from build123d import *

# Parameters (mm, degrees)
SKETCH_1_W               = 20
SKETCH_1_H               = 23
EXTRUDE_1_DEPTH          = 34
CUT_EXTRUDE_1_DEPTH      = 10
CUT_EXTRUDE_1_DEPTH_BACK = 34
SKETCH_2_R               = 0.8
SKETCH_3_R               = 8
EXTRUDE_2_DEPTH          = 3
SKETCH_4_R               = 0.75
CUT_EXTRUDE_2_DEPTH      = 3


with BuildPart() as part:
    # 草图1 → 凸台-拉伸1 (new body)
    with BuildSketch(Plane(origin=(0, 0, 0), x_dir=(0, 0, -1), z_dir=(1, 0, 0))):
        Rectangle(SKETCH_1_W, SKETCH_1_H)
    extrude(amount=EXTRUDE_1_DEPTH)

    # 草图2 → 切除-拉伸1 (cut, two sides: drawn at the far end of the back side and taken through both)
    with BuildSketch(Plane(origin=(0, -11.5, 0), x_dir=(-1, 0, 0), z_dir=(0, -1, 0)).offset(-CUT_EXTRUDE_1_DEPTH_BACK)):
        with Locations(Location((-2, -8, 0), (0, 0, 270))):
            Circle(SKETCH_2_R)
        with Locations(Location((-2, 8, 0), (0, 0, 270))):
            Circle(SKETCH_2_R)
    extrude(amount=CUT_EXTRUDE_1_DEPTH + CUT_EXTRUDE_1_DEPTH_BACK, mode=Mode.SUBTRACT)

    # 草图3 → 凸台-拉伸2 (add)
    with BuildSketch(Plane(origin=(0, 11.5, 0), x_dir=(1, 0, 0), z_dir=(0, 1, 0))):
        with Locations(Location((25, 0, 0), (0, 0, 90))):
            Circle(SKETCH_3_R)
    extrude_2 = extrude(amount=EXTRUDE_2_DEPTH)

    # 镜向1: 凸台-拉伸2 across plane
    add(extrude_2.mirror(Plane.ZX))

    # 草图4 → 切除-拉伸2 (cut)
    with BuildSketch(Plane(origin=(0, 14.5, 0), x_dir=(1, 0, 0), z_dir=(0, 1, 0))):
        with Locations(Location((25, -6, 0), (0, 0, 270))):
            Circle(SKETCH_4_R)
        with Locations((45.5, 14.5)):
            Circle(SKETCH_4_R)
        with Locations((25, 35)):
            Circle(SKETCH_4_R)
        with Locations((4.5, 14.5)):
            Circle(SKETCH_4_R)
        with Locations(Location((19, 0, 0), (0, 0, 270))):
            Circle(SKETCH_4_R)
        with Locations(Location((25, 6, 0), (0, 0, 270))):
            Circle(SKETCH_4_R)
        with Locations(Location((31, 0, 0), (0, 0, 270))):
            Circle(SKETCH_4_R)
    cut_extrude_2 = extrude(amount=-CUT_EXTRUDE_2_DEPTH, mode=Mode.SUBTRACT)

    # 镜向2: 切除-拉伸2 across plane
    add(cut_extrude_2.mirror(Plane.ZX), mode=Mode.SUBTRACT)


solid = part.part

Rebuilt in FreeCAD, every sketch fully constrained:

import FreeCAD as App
import Part
import Sketcher

V = App.Vector
Q = App.Units.Quantity

doc = App.newDocument("Part")
params = doc.addObject("Spreadsheet::Sheet", "Params")
for row, (alias, value) in enumerate([
    ("sketch1_width", "23 mm"),
    ("sketch1_height", "20 mm"),
    ("pad1_length", "34 mm"),
    ("sketch2_diameter", "1.6 mm"),
    ("sketch3_diameter", "16 mm"),
    ("pad2_length", "3 mm"),
    ("sketch4_diameter", "1.5 mm"),
    ("pocket2_length", "3 mm"),
], start=1):
    params.set(f"A{row}", alias)
    params.set(f"B{row}", "=" + value)
    params.setAlias(f"B{row}", alias)

body = doc.addObject("PartDesign::Body", "Body")

# Sketch on YZ plane
sketch1 = body.newObject("Sketcher::SketchObject", "Sketch")
sketch1.AttachmentSupport = (doc.getObject("YZ_Plane"), [""])
sketch1.MapMode = "FlatFace"
sketch1.addGeometry(Part.LineSegment(V(12, 10, 0), V(-12, 10, 0)), False)
sketch1.addGeometry(Part.LineSegment(V(-12, 10, 0), V(-12, -10, 0)), False)
sketch1.addGeometry(Part.LineSegment(V(-12, -10, 0), V(12, -10, 0)), False)
sketch1.addGeometry(Part.LineSegment(V(12, -10, 0), V(12, 10, 0)), False)
sketch1.addConstraint(Sketcher.Constraint("Coincident", 0, 2, 1, 1))
sketch1.addConstraint(Sketcher.Constraint("Coincident", 1, 2, 2, 1))
sketch1.addConstraint(Sketcher.Constraint("Coincident", 2, 2, 3, 1))
sketch1.addConstraint(Sketcher.Constraint("Coincident", 3, 2, 0, 1))
sketch1.addConstraint(Sketcher.Constraint("Horizontal", 0))
sketch1.addConstraint(Sketcher.Constraint("Vertical", 1))
sketch1.addConstraint(Sketcher.Constraint("Horizontal", 2))
sketch1.addConstraint(Sketcher.Constraint("Vertical", 3))
sketch1.addConstraint(Sketcher.Constraint("Symmetric", 0, 2, 2, 2, -1, 1))
sketch1.addConstraint(Sketcher.Constraint("DistanceX", 0, 2, 0, 1, Q("23 mm")))
sketch1.addConstraint(Sketcher.Constraint("DistanceY", 1, 2, 1, 1, Q("20 mm")))
sketch1.setExpression("Constraints[9]", "Params.sketch1_width")
sketch1.setExpression("Constraints[10]", "Params.sketch1_height")
pad1 = body.newObject("PartDesign::Pad", "Pad")
pad1.Profile = sketch1
pad1.setExpression("Length", "Params.pad1_length")

# Sketch on XZ plane
sketch2 = body.newObject("Sketcher::SketchObject", "Sketch001")
sketch2.AttachmentSupport = (doc.getObject("XZ_Plane"), [""])
sketch2.MapMode = "FlatFace"
sketch2.AttachmentOffset = App.Placement(V(0, 0, 11.5), App.Rotation())
sketch2.addGeometry(Part.Circle(V(2, 8, 0), V(0, 0, 1), 0.8), False)
sketch2.addGeometry(Part.Circle(V(2, -8, 0), V(0, 0, 1), 0.8), False)
sketch2.addConstraint(Sketcher.Constraint("Equal", 0, 1))
sketch2.addConstraint(Sketcher.Constraint("Symmetric", 0, 3, 1, 3, -1))
sketch2.addConstraint(Sketcher.Constraint("Diameter", 0, Q("1.6 mm")))
sketch2.addConstraint(Sketcher.Constraint("DistanceX", -1, 1, 0, 3, Q("2 mm")))
sketch2.addConstraint(Sketcher.Constraint("DistanceY", -1, 1, 0, 3, Q("8 mm")))
sketch2.setExpression("Constraints[2]", "Params.sketch2_diameter")
pocket1 = body.newObject("PartDesign::Pocket", "Pocket")
pocket1.Profile = sketch2
pocket1.Type = "ThroughAll"
pocket1.Midplane = True

# Sketch on XZ plane
sketch3 = body.newObject("Sketcher::SketchObject", "Sketch002")
sketch3.AttachmentSupport = (doc.getObject("XZ_Plane"), [""])
sketch3.MapMode = "FlatFace"
sketch3.AttachmentOffset = App.Placement(V(0, 0, -11.5), App.Rotation())
sketch3.addGeometry(Part.Circle(V(25, 0, 0), V(0, 0, 1), 8), False)
sketch3.addConstraint(Sketcher.Constraint("PointOnObject", 0, 3, -1))
sketch3.addConstraint(Sketcher.Constraint("Diameter", 0, Q("16 mm")))
sketch3.addConstraint(Sketcher.Constraint("DistanceX", -1, 1, 0, 3, Q("25 mm")))
sketch3.setExpression("Constraints[1]", "Params.sketch3_diameter")
pad2 = body.newObject("PartDesign::Pad", "Pad001")
pad2.Profile = sketch3
pad2.setExpression("Length", "Params.pad2_length")
pad2.Reversed = True
doc.recompute()

mirrored = body.newObject("PartDesign::Mirrored", "Mirrored")
mirrored.Originals = [pad2]
mirrored.MirrorPlane = (doc.getObject("XZ_Plane"), [""])
body.Tip = mirrored

# Sketch on XZ plane
sketch4 = body.newObject("Sketcher::SketchObject", "Sketch003")
sketch4.AttachmentSupport = (doc.getObject("XZ_Plane"), [""])
sketch4.MapMode = "FlatFace"
sketch4.AttachmentOffset = App.Placement(V(0, 0, -14.5), App.Rotation())
sketch4.addGeometry(Part.Circle(V(25, 6, 0), V(0, 0, 1), 0.8), False)
sketch4.addGeometry(Part.Circle(V(45.5, -14.5, 0), V(0, 0, 1), 0.8), False)
sketch4.addGeometry(Part.Circle(V(25, -35, 0), V(0, 0, 1), 0.8), False)
sketch4.addGeometry(Part.Circle(V(4.5, -14.5, 0), V(0, 0, 1), 0.8), False)
sketch4.addGeometry(Part.Circle(V(19, 0, 0), V(0, 0, 1), 0.8), False)
sketch4.addGeometry(Part.Circle(V(25, -6, 0), V(0, 0, 1), 0.8), False)
sketch4.addGeometry(Part.Circle(V(31, 0, 0), V(0, 0, 1), 0.8), False)
sketch4.addConstraint(Sketcher.Constraint("Equal", 0, 1))
sketch4.addConstraint(Sketcher.Constraint("Equal", 1, 2))
sketch4.addConstraint(Sketcher.Constraint("Equal", 2, 3))
sketch4.addConstraint(Sketcher.Constraint("Equal", 3, 4))
sketch4.addConstraint(Sketcher.Constraint("Equal", 4, 5))
sketch4.addConstraint(Sketcher.Constraint("Equal", 5, 6))
sketch4.addConstraint(Sketcher.Constraint("Symmetric", 0, 3, 5, 3, -1))
sketch4.addConstraint(Sketcher.Constraint("PointOnObject", 4, 3, -1))
sketch4.addConstraint(Sketcher.Constraint("PointOnObject", 6, 3, -1))
sketch4.addConstraint(Sketcher.Constraint("Horizontal", 1, 3, 3, 3))
sketch4.addConstraint(Sketcher.Constraint("Vertical", 0, 3, 2, 3))
sketch4.addConstraint(Sketcher.Constraint("Diameter", 0, Q("1.5 mm")))
sketch4.addConstraint(Sketcher.Constraint("DistanceX", -1, 1, 0, 3, Q("25 mm")))
sketch4.addConstraint(Sketcher.Constraint("DistanceY", -1, 1, 0, 3, Q("6 mm")))
sketch4.addConstraint(Sketcher.Constraint("DistanceY", 2, 3, -1, 1, Q("35 mm")))
sketch4.addConstraint(Sketcher.Constraint("DistanceX", -1, 1, 4, 3, Q("19 mm")))
sketch4.addConstraint(Sketcher.Constraint("DistanceX", -1, 1, 6, 3, Q("31 mm")))
sketch4.addConstraint(Sketcher.Constraint("DistanceX", 3, 3, 1, 3, Q("41 mm")))
sketch4.addConstraint(Sketcher.Constraint("DistanceX", -1, 1, 1, 3, Q("45.5 mm")))
sketch4.addConstraint(Sketcher.Constraint("DistanceY", 1, 3, -1, 1, Q("14.5 mm")))
sketch4.setExpression("Constraints[11]", "Params.sketch4_diameter")
pocket2 = body.newObject("PartDesign::Pocket", "Pocket001")
pocket2.Profile = sketch4
pocket2.setExpression("Length", "Params.pocket2_length")
pocket2.Reversed = True
doc.recompute()

mirrored2 = body.newObject("PartDesign::Mirrored", "Mirrored001")
mirrored2.Originals = [pocket2]
mirrored2.MirrorPlane = (doc.getObject("XZ_Plane"), [""])
body.Tip = mirrored2

doc.recompute()
